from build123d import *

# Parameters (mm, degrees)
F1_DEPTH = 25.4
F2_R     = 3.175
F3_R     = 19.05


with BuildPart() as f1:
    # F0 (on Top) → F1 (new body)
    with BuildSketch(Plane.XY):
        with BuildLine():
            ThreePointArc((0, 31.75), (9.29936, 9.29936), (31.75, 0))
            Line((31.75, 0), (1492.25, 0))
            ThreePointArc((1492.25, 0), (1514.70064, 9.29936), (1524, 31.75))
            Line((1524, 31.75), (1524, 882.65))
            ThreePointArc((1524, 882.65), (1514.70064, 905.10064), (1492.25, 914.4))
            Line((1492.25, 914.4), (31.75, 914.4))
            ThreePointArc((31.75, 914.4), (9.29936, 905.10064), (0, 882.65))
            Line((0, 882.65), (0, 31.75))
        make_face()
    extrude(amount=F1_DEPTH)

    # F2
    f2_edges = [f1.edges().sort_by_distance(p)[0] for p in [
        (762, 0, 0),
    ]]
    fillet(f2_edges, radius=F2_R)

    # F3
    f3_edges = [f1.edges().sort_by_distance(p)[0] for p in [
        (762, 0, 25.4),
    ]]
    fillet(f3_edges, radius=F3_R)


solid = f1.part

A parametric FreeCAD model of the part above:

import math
import FreeCAD as App
import Part
import Sketcher
Q = App.Units.Quantity


def edges_at(feature, points):
    """Names of the edges that pass closest to the given points."""
    edges = feature.Shape.Edges
    near = lambda p: min(range(len(edges)), key=lambda i: edges[i].distToShape(Part.Vertex(*p))[0])
    return sorted({f"Edge{near(p) + 1}" for p in points})

doc = App.newDocument("Part")
body = doc.addObject("PartDesign::Body", "Body")

sketch1 = body.newObject("Sketcher::SketchObject", "Sketch")
sketch1.AttachmentSupport = (doc.getObject("XY_Plane"), [""])
sketch1.MapMode = "FlatFace"
sketch1.addGeometry([
    Part.ArcOfCircle(Part.Circle(App.Vector(31.750001, 31.750001, 0), App.Vector(0, 0, 1), 31.750001), math.radians(-179.999998), math.radians(-90.000002)),
    Part.LineSegment(App.Vector(31.75, 0, 0), App.Vector(1492.25, 0, 0)),
    Part.ArcOfCircle(Part.Circle(App.Vector(1492.249999, 31.750001, 0), App.Vector(0, 0, 1), 31.750001), math.radians(-89.999998), math.radians(-0.000002)),
    Part.LineSegment(App.Vector(1524, 31.75, 0), App.Vector(1524, 882.65, 0)),
    Part.ArcOfCircle(Part.Circle(App.Vector(1492.249999, 882.649999, 0), App.Vector(0, 0, 1), 31.750001), math.radians(0.000002), math.radians(89.999998)),
    Part.LineSegment(App.Vector(1492.25, 914.4, 0), App.Vector(31.75, 914.4, 0)),
    Part.ArcOfCircle(Part.Circle(App.Vector(31.750001, 882.649999, 0), App.Vector(0, 0, 1), 31.750001), math.radians(90.000002), math.radians(179.999998)),
    Part.LineSegment(App.Vector(0, 882.65, 0), App.Vector(0, 31.75, 0)),
], False)
sketch1.addConstraint([
    Sketcher.Constraint("Tangent", 0, 2, 1, 1),
    Sketcher.Constraint("Tangent", 1, 2, 2, 1),
    Sketcher.Constraint("Tangent", 2, 2, 3, 1),
    Sketcher.Constraint("Tangent", 3, 2, 4, 1),
    Sketcher.Constraint("Tangent", 4, 2, 5, 1),
    Sketcher.Constraint("Tangent", 5, 2, 6, 1),
    Sketcher.Constraint("Tangent", 6, 2, 7, 1),
    Sketcher.Constraint("Tangent", 7, 2, 0, 1),
    Sketcher.Constraint("Horizontal", 1),
    Sketcher.Constraint("Vertical", 3),
    Sketcher.Constraint("Horizontal", 5),
    Sketcher.Constraint("Vertical", 7),
    Sketcher.Constraint("Equal", 0, 2),
    Sketcher.Constraint("Equal", 2, 4),
    Sketcher.Constraint("Equal", 4, 6),
    Sketcher.Constraint("PointOnObject", 0, 2, -1),
    Sketcher.Constraint("PointOnObject", 6, 2, -2),
    Sketcher.Constraint("Radius", 0, Q("1.25 in")),
    Sketcher.Constraint("DistanceX", 1, 1, 1, 2, Q("57.5 in")),
    Sketcher.Constraint("DistanceY", 3, 1, 3, 2, Q("33.5 in")),
])
pad1 = body.newObject("PartDesign::Pad", "Pad")
pad1.Profile = sketch1
pad1.Length = Q("1 in")
doc.recompute()

fillet = body.newObject("PartDesign::Fillet", "Fillet")
fillet.Base = (pad1, edges_at(pad1, [(762, 0, 0)]))
fillet.Radius = Q("0.125 in")
doc.recompute()

fillet2 = body.newObject("PartDesign::Fillet", "Fillet001")
fillet2.Base = (fillet, edges_at(fillet, [(762, 0, 25.4)]))
fillet2.Radius = Q("0.75 in")

doc.recompute()
